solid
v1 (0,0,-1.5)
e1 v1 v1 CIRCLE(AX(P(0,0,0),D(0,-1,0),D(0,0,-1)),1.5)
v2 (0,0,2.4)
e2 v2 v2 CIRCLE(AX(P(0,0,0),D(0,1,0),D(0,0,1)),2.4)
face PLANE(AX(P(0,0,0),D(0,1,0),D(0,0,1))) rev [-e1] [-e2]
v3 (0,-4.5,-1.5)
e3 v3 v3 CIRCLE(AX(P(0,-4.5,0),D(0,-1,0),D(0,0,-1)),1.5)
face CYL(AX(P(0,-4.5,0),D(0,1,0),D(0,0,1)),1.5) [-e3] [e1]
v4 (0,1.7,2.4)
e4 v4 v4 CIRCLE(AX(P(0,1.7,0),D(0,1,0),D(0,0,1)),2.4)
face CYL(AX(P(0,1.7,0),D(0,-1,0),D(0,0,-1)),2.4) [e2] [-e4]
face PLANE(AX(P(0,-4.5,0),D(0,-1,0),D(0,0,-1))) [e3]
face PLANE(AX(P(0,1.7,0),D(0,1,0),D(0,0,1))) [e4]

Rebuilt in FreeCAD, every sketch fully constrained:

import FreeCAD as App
import Part
import Sketcher
Q = App.Units.Quantity

doc = App.newDocument("Part")
params = doc.addObject("Spreadsheet::Sheet", "Params")
for row, (alias, value) in enumerate([
    ("sketch1_diameter", "4.8 mm"),
    ("pad1_length", "1.7 mm"),
    ("sketch2_diameter", "3 mm"),
    ("pad2_length", "4.5 mm"),
], start=1):
    params.set(f"A{row}", alias)
    params.set(f"B{row}", "=" + value)
    params.setAlias(f"B{row}", alias)

body = doc.addObject("PartDesign::Body", "Body")

# Sketch on XZ plane
sketch1 = doc.addObject("Sketcher::SketchObject", "Sketch")
body.addObject(sketch1)
sketch1.AttachmentSupport = (doc.XZ_Plane, [""])
sketch1.MapMode = "FlatFace"
sketch1.addGeometry(Part.Circle(App.Vector(0, 0, 0), App.Vector(0, 0, 1), 2.4), False)
sketch1.addConstraint(Sketcher.Constraint("Coincident", 0, 3, -1, 1))
sketch1.addConstraint(Sketcher.Constraint("Diameter", 0, Q("4.8 mm")))
sketch1.setExpression("Constraints[1]", "Params.sketch1_diameter")
pad1 = doc.addObject("PartDesign::Pad", "Pad")
body.addObject(pad1)
pad1.Profile = sketch1
pad1.setExpression("Length", "Params.pad1_length")
pad1.Reversed = True

# Sketch on XZ plane
sketch2 = doc.addObject("Sketcher::SketchObject", "Sketch001")
body.addObject(sketch2)
sketch2.AttachmentSupport = (doc.XZ_Plane, [""])
sketch2.MapMode = "FlatFace"
sketch2.addGeometry(Part.Circle(App.Vector(0, 0, 0), App.Vector(0, 0, 1), 1.5), False)
sketch2.addConstraint(Sketcher.Constraint("Coincident", 0, 3, -1, 1))
sketch2.addConstraint(Sketcher.Constraint("Diameter", 0, Q("3 mm")))
sketch2.setExpression("Constraints[1]", "Params.sketch2_diameter")
pad2 = doc.addObject("PartDesign::Pad", "Pad001")
body.addObject(pad2)
pad2.Profile = sketch2
pad2.setExpression("Length", "Params.pad2_length")

doc.recompute()
